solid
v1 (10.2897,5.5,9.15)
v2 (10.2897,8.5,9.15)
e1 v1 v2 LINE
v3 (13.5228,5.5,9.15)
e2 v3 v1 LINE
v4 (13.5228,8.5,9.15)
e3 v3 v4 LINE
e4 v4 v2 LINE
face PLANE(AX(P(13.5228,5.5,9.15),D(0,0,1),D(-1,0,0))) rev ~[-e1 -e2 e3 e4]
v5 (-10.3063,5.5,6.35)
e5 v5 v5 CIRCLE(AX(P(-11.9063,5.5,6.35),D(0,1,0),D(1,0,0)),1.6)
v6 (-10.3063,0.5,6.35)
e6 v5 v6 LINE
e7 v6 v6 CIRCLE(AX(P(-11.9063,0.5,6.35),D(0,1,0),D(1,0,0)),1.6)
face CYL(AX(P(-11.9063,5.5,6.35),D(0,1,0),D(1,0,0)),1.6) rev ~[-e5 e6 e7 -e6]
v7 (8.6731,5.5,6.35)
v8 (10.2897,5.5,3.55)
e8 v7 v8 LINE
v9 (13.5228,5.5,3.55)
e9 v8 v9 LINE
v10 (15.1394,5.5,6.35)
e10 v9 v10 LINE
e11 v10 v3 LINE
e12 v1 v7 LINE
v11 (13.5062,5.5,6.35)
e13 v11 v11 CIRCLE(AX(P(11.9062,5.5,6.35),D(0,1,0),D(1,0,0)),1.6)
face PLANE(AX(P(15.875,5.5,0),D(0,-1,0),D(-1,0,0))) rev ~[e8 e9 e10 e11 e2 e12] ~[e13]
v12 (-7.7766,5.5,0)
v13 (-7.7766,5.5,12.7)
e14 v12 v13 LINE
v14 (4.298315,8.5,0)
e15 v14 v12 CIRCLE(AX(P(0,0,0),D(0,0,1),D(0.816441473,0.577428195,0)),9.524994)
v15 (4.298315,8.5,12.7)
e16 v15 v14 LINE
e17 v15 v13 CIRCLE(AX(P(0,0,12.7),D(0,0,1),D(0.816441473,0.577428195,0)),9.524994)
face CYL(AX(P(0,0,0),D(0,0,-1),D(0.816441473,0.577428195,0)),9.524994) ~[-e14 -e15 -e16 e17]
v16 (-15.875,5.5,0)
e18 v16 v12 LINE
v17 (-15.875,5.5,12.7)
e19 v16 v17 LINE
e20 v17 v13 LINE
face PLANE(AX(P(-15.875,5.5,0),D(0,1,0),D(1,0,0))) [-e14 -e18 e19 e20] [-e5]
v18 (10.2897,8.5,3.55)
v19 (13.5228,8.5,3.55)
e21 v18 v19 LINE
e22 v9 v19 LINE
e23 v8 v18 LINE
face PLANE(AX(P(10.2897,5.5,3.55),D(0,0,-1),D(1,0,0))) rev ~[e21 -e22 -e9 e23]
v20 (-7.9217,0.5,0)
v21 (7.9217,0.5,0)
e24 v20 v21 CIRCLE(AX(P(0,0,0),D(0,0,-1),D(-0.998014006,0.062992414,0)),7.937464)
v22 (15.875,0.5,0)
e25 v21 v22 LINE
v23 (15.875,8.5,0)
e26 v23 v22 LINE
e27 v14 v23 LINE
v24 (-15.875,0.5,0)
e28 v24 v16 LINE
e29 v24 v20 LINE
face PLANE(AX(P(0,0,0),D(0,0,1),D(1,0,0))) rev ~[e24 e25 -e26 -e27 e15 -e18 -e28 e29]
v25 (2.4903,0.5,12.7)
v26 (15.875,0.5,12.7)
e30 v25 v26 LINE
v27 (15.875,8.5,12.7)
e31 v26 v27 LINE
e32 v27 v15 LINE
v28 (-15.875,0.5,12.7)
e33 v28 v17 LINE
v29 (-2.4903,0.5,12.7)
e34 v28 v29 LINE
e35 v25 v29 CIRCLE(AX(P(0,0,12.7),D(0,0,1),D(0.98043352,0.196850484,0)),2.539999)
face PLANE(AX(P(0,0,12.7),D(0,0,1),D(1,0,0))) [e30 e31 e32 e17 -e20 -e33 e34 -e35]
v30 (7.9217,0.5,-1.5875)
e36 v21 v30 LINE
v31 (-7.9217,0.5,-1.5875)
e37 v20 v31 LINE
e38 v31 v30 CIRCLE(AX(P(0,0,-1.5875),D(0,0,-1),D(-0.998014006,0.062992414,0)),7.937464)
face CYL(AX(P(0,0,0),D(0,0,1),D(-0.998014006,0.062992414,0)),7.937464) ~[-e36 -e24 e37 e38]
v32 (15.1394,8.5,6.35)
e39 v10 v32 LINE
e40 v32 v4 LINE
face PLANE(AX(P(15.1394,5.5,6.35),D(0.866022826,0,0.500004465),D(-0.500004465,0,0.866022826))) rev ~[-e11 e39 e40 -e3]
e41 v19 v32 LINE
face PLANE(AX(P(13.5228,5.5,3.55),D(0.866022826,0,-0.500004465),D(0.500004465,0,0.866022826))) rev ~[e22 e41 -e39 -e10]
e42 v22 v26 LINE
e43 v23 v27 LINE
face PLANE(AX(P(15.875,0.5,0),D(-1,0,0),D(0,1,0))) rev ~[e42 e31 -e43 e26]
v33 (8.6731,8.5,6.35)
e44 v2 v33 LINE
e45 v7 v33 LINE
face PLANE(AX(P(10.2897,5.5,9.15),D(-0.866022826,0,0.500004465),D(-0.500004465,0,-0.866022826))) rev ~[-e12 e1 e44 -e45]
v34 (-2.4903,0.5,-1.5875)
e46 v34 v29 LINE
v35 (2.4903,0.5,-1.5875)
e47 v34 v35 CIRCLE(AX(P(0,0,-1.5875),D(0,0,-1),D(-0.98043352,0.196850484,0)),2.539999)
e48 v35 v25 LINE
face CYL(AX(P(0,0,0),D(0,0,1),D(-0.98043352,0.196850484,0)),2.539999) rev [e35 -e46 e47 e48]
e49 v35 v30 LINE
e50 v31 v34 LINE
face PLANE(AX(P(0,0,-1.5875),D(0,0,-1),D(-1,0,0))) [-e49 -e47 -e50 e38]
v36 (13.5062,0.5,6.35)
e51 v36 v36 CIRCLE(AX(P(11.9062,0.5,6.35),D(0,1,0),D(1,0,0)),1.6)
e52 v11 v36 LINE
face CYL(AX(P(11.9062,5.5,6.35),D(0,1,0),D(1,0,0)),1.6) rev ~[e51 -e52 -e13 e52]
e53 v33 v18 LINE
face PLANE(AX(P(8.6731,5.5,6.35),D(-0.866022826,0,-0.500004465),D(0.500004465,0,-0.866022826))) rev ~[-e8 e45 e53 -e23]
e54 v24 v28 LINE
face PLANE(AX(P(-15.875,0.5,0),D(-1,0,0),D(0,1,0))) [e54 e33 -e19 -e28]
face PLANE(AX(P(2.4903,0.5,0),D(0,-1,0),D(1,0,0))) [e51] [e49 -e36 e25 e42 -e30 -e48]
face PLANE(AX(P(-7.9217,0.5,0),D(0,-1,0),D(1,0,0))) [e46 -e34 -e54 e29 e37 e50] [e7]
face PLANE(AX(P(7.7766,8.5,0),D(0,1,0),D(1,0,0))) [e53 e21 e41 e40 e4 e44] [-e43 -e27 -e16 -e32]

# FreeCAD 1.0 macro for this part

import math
import FreeCAD as App
import Part
import Sketcher
from FreeCAD import Vector
Q = App.Units.Quantity

doc = App.newDocument("Part")
body = doc.addObject("PartDesign::Body", "Body")

sketch1 = body.newObject("Sketcher::SketchObject", "Sketch")
sketch1.AttachmentSupport = (doc.getObject("XY_Plane"), [""])
sketch1.MapMode = "FlatFace"
sketch1.addGeometry([
    Part.LineSegment(Vector(-15.9, 5.5, 0), Vector(-15.9, 0.5, 0)),
    Part.LineSegment(Vector(-15.9, 0.5, 0), Vector(-2.5, 0.5, 0)),
    Part.ArcOfCircle(Part.Circle(Vector(0, 0, 0), Vector(0, 0, 1), 2.5), math.radians(11), math.radians(169)),
    Part.LineSegment(Vector(2.5, 0.5, 0), Vector(15.9, 0.5, 0)),
    Part.LineSegment(Vector(15.9, 0.5, 0), Vector(15.9, 5.5, 0)),
    Part.LineSegment(Vector(15.9, 5.5, 0), Vector(7.8, 5.5, 0)),
    Part.ArcOfCircle(Part.Circle(Vector(0, 0, 0), Vector(0, 0, 1), 9.5), math.radians(35), math.radians(145)),
    Part.LineSegment(Vector(-7.8, 5.5, 0), Vector(-15.9, 5.5, 0)),
], False)
sketch1.addConstraint([
    Sketcher.Constraint("Coincident", 0, 2, 1, 1),
    Sketcher.Constraint("Coincident", 1, 2, 2, 2),
    Sketcher.Constraint("Coincident", 2, 1, 3, 1),
    Sketcher.Constraint("Coincident", 3, 2, 4, 1),
    Sketcher.Constraint("Coincident", 4, 2, 5, 1),
    Sketcher.Constraint("Coincident", 5, 2, 6, 1),
    Sketcher.Constraint("Coincident", 6, 2, 7, 1),
    Sketcher.Constraint("Coincident", 7, 2, 0, 1),
    Sketcher.Constraint("Vertical", 0),
    Sketcher.Constraint("Horizontal", 1),
    Sketcher.Constraint("Horizontal", 3),
    Sketcher.Constraint("Vertical", 4),
    Sketcher.Constraint("Horizontal", 5),
    Sketcher.Constraint("Horizontal", 7),
    Sketcher.Constraint("Coincident", 2, 3, -1, 1),
    Sketcher.Constraint("Coincident", 6, 3, -1, 1),
    Sketcher.Constraint("Symmetric", 0, 2, 3, 2, -2),
    Sketcher.Constraint("Horizontal", 5, 2, 6, 2),
    Sketcher.Constraint("Radius", 2, Q("0.1 in")),
    Sketcher.Constraint("Radius", 6, Q("0.375 in")),
    Sketcher.Constraint("DistanceX", 0, 2, -1, 1, Q("0.625 in")),
    Sketcher.Constraint("DistanceY", 0, 2, 0, 1, Q("5 mm")),
    Sketcher.Constraint("DistanceY", -1, 1, 0, 2, Q("0.5 mm")),
])
pad1 = body.newObject("PartDesign::Pad", "Pad")
pad1.Profile = sketch1
pad1.Length = Q("0.5 in")

sketch2 = body.newObject("Sketcher::SketchObject", "Sketch001")
sketch2.AttachmentSupport = (doc.getObject("XZ_Plane"), [""])
sketch2.MapMode = "FlatFace"
sketch2.AttachmentOffset = App.Placement(Vector(0, 0, -5.5), App.Rotation())
sketch2.addGeometry([
    Part.Circle(Vector(-11.9, 6.3, 0), Vector(0, 0, 1), 1.6),
    Part.Circle(Vector(11.9, 6.3, 0), Vector(0, 0, 1), 1.6),
], False)
sketch2.addConstraint([
    Sketcher.Constraint("Equal", 0, 1),
    Sketcher.Constraint("Symmetric", 0, 3, 1, 3, -2),
    Sketcher.Constraint("Diameter", 0, Q("3.2 mm")),
    Sketcher.Constraint("DistanceX", 0, 3, -1, 1, Q("0.468752 in")),
    Sketcher.Constraint("DistanceY", -1, 1, 0, 3, Q("0.25 in")),
])
pocket1 = body.newObject("PartDesign::Pocket", "Pocket")
pocket1.Profile = sketch2
pocket1.Type = "ThroughAll"
pocket1.Reversed = True

sketch3 = body.newObject("Sketcher::SketchObject", "Sketch002")
sketch3.AttachmentSupport = (doc.getObject("XY_Plane"), [""])
sketch3.MapMode = "FlatFace"
sketch3.addGeometry([
    Part.LineSegment(Vector(-2.5, 0.5, 0), Vector(-7.9, 0.5, 0)),
    Part.ArcOfCircle(Part.Circle(Vector(0, 0, 0), Vector(0, 0, 1), 7.9), math.radians(4), math.radians(176)),
    Part.LineSegment(Vector(7.9, 0.5, 0), Vector(2.5, 0.5, 0)),
    Part.ArcOfCircle(Part.Circle(Vector(0, 0, 0), Vector(0, 0, 1), 2.5), math.radians(11), math.radians(169)),
], False)
sketch3.addConstraint([
    Sketcher.Constraint("Coincident", 0, 2, 1, 2),
    Sketcher.Constraint("Coincident", 1, 1, 2, 1),
    Sketcher.Constraint("Coincident", 2, 2, 3, 1),
    Sketcher.Constraint("Coincident", 3, 2, 0, 1),
    Sketcher.Constraint("Horizontal", 0),
    Sketcher.Constraint("Horizontal", 2),
    Sketcher.Constraint("Coincident", 1, 3, -1, 1),
    Sketcher.Constraint("Coincident", 3, 3, -1, 1),
    Sketcher.Constraint("Horizontal", 0, 2, 1, 1),
    Sketcher.Constraint("Radius", 1, Q("0.3125 in")),
    Sketcher.Constraint("Radius", 3, Q("0.1 in")),
    Sketcher.Constraint("DistanceX", 0, 2, 0, 1, Q("5.4314 mm")),
])
pad2 = body.newObject("PartDesign::Pad", "Pad001")
pad2.Profile = sketch3
pad2.Length = Q("0.0625 in")
pad2.Reversed = True

sketch4 = body.newObject("Sketcher::SketchObject", "Sketch003")
sketch4.AttachmentSupport = (doc.getObject("XZ_Plane"), [""])
sketch4.MapMode = "FlatFace"
sketch4.AttachmentOffset = App.Placement(Vector(0, 0, -5.5), App.Rotation())
sketch4.addGeometry([
    Part.LineSegment(Vector(15.9, 12.7, 0), Vector(15.9, 0, 0)),
    Part.LineSegment(Vector(15.9, 0, 0), Vector(-0.3, 0, 0)),
    Part.LineSegment(Vector(-0.3, 0, 0), Vector(-0.3, 12.7, 0)),
    Part.LineSegment(Vector(-0.3, 12.7, 0), Vector(15.9, 12.7, 0)),
    Part.LineSegment(Vector(8.7, 6.3, 0), Vector(10.3, 3.5, 0)),
    Part.LineSegment(Vector(10.3, 3.5, 0), Vector(13.5, 3.5, 0)),
    Part.LineSegment(Vector(13.5, 3.5, 0), Vector(15.1, 6.3, 0)),
    Part.LineSegment(Vector(15.1, 6.3, 0), Vector(13.5, 9.2, 0)),
    Part.LineSegment(Vector(13.5, 9.2, 0), Vector(10.3, 9.2, 0)),
    Part.LineSegment(Vector(10.3, 9.2, 0), Vector(8.7, 6.3, 0)),
], False)
sketch4.addConstraint([
    Sketcher.Constraint("Coincident", 0, 2, 1, 1),
    Sketcher.Constraint("Coincident", 1, 2, 2, 1),
    Sketcher.Constraint("Coincident", 2, 2, 3, 1),
    Sketcher.Constraint("Coincident", 3, 2, 0, 1),
    Sketcher.Constraint("Coincident", 4, 2, 5, 1),
    Sketcher.Constraint("Coincident", 5, 2, 6, 1),
    Sketcher.Constraint("Coincident", 6, 2, 7, 1),
    Sketcher.Constraint("Coincident", 7, 2, 8, 1),
    Sketcher.Constraint("Coincident", 8, 2, 9, 1),
    Sketcher.Constraint("Coincident", 9, 2, 4, 1),
    Sketcher.Constraint("Vertical", 0),
    Sketcher.Constraint("Horizontal", 1),
    Sketcher.Constraint("Vertical", 2),
    Sketcher.Constraint("Horizontal", 3),
    Sketcher.Constraint("Horizontal", 5),
    Sketcher.Constraint("Horizontal", 8),
    Sketcher.Constraint("PointOnObject", 0, 2, -1),
    Sketcher.Constraint("Parallel", 4, 7),
    Sketcher.Constraint("Parallel", 6, 9),
    Sketcher.Constraint("Horizontal", 6, 2, 9, 2),
    Sketcher.Constraint("Vertical", 5, 2, 7, 2),
    Sketcher.Constraint("Vertical", 4, 2, 8, 2),
    Sketcher.Constraint("DistanceY", 0, 2, 0, 1, Q("0.5 in")),
    Sketcher.Constraint("Angle", 4, Q("-59.9997 deg")),
    Sketcher.Constraint("DistanceY", -1, 1, 6, 2, Q("0.25 in")),
    Sketcher.Constraint("DistanceY", 5, 2, 7, 2, Q("5.6 mm")),
    Sketcher.Constraint("DistanceX", -1, 1, 0, 2, Q("0.625 in")),
    Sketcher.Constraint("DistanceX", 1, 2, 1, 1, Q("16.1968 mm")),
    Sketcher.Constraint("DistanceX", 5, 1, 5, 2, Q("3.233 mm")),
    Sketcher.Constraint("DistanceX", -1, 1, 4, 2, Q("0.4051 in")),
])
pad3 = body.newObject("PartDesign::Pad", "Pad002")
pad3.Profile = sketch4
pad3.Length = Q("0.1181102 in")
pad3.Reversed = True

doc.recompute()
